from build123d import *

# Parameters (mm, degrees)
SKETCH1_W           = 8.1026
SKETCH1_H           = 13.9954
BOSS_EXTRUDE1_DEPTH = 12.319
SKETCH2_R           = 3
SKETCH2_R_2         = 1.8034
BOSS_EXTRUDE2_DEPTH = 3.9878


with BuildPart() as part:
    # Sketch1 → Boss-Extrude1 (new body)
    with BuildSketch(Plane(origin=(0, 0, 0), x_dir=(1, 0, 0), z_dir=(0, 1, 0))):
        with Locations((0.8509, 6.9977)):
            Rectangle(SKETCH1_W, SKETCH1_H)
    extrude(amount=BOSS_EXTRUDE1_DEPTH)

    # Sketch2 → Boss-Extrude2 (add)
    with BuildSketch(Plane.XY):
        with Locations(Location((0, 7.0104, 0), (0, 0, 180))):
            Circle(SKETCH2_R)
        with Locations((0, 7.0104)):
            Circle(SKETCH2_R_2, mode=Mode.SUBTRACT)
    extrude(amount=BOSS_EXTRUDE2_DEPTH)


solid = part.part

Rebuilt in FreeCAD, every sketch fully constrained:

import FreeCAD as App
import Part
import Sketcher

V = App.Vector
Q = App.Units.Quantity

doc = App.newDocument("Part")
body = doc.addObject("PartDesign::Body", "Body")

# Sketch on XZ plane
sketch1 = body.newObject("Sketcher::SketchObject", "Sketch")
sketch1.AttachmentSupport = (doc.getObject("XZ_Plane"), [""])
sketch1.MapMode = "FlatFace"
sketch1.addGeometry([
    Part.LineSegment(V(-3, -14, 0), V(-3, 0, 0)),
    Part.LineSegment(V(-3, 0, 0), V(5, 0, 0)),
    Part.LineSegment(V(5, 0, 0), V(5, -14, 0)),
    Part.LineSegment(V(5, -14, 0), V(-3, -14, 0)),
], False)
sketch1.addConstraint([
    Sketcher.Constraint("Coincident", 0, 2, 1, 1),
    Sketcher.Constraint("Coincident", 1, 2, 2, 1),
    Sketcher.Constraint("Coincident", 2, 2, 3, 1),
    Sketcher.Constraint("Coincident", 3, 2, 0, 1),
    Sketcher.Constraint("Vertical", 0),
    Sketcher.Constraint("Horizontal", 1),
    Sketcher.Constraint("Vertical", 2),
    Sketcher.Constraint("Horizontal", 3),
    Sketcher.Constraint("PointOnObject", 0, 2, -1),
    Sketcher.Constraint("DistanceX", 1, 1, 1, 2, Q("0.319 in")),
    Sketcher.Constraint("DistanceY", 0, 1, 0, 2, Q("0.551 in")),
    Sketcher.Constraint("DistanceX", 0, 2, -1, 1, Q("0.126 in")),
])
pad1 = body.newObject("PartDesign::Pad", "Pad")
pad1.Profile = sketch1
pad1.Length = Q("0.485 in")
pad1.Reversed = True

# Sketch on XY plane
sketch2 = body.newObject("Sketcher::SketchObject", "Sketch001")
sketch2.AttachmentSupport = (doc.getObject("XY_Plane"), [""])
sketch2.MapMode = "FlatFace"
sketch2.addGeometry([
    Part.Circle(V(0, 7, 0), V(0, 0, 1), 3),
    Part.Circle(V(0, 7, 0), V(0, 0, 1), 1.8),
], False)
sketch2.addConstraint([
    Sketcher.Constraint("Coincident", 1, 3, 0, 3),
    Sketcher.Constraint("PointOnObject", 0, 3, -2),
    Sketcher.Constraint("Diameter", 1, Q("0.142 in")),
    Sketcher.Constraint("Diameter", 0, Q("6 mm")),
    Sketcher.Constraint("DistanceY", -1, 1, 0, 3, Q("0.276 in")),
])
pad2 = body.newObject("PartDesign::Pad", "Pad001")
pad2.Profile = sketch2
pad2.Length = Q("0.157 in")

doc.recompute()
